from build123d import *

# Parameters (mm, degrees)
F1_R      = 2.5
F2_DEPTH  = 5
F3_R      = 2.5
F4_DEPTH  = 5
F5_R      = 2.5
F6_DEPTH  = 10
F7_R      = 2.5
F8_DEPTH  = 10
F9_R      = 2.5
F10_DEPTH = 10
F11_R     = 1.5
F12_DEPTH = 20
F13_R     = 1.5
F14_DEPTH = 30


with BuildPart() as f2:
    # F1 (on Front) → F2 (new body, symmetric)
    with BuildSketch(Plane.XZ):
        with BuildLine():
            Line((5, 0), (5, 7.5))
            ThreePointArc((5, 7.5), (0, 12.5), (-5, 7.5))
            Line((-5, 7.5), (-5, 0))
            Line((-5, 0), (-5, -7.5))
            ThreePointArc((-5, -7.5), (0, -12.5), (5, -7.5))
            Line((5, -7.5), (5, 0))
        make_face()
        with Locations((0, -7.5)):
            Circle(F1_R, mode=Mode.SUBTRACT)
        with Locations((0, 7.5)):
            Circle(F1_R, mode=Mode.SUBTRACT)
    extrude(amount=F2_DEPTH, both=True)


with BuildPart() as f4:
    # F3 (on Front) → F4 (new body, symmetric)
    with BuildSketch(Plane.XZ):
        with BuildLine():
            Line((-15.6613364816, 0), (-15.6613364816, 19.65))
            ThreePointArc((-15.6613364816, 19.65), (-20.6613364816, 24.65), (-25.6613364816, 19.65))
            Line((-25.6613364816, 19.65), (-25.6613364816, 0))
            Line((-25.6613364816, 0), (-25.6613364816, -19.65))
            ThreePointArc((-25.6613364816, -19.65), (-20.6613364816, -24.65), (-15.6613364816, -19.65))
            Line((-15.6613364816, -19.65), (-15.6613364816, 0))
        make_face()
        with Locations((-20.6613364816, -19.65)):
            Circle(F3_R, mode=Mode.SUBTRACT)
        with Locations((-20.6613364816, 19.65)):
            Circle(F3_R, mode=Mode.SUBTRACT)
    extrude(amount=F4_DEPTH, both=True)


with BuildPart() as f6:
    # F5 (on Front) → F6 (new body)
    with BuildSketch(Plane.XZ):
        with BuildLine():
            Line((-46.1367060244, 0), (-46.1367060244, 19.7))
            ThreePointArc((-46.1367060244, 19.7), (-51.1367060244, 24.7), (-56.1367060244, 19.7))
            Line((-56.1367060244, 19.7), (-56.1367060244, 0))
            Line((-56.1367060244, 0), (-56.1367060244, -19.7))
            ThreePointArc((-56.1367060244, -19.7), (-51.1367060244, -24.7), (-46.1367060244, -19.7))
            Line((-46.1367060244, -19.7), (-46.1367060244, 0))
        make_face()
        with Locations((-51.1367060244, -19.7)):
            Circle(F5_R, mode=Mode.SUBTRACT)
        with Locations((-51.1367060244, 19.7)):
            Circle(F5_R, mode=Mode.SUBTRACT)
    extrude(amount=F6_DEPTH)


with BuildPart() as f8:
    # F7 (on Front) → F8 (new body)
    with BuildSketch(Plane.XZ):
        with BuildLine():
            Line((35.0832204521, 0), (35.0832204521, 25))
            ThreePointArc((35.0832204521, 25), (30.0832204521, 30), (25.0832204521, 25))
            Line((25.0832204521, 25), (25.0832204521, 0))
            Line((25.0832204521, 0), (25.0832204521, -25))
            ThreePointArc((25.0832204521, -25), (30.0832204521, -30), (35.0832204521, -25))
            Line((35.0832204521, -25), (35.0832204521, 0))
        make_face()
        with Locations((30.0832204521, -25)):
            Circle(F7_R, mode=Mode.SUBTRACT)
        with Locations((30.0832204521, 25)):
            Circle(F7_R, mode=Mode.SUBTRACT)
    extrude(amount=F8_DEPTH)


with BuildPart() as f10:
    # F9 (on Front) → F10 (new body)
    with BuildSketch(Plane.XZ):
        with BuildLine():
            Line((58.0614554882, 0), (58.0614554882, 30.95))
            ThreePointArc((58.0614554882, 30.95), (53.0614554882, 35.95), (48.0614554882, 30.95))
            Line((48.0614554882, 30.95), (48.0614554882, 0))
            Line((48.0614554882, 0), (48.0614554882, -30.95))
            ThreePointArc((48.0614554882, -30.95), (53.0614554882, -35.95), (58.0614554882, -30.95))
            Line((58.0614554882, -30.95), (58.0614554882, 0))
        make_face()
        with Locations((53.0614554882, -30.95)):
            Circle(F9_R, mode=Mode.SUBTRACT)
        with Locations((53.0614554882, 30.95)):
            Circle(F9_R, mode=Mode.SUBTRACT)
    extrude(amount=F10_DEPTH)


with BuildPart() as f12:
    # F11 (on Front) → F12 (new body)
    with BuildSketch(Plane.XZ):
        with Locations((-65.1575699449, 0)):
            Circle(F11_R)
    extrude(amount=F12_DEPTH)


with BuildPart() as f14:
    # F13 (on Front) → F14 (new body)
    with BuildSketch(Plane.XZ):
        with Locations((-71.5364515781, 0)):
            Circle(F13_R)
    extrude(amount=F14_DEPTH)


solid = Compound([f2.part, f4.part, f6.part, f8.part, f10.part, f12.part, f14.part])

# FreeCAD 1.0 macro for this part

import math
import FreeCAD as App
import Part
import Sketcher

doc = App.newDocument("Part")
body = doc.addObject("PartDesign::Body", "Body")

# Sketch on XZ plane
sketch1 = body.newObject("Sketcher::SketchObject", "Sketch")
sketch1.AttachmentSupport = (doc.getObject("XZ_Plane"), [""])
sketch1.MapMode = "FlatFace"
sketch1.addGeometry([
    Part.ArcOfCircle(Part.Circle(App.Vector(0, 7.5, 0), App.Vector(0, 0, 1), 5), math.radians(0), math.radians(180)),  # 0
    Part.LineSegment(App.Vector(-5, 7.5, 0), App.Vector(-5, -7.5, 0)),  # 1
    Part.ArcOfCircle(Part.Circle(App.Vector(0, -7.5, 0), App.Vector(0, 0, 1), 5), math.radians(180), math.radians(360)),  # 2
    Part.LineSegment(App.Vector(5, -7.5, 0), App.Vector(5, 7.5, 0)),  # 3
    Part.Circle(App.Vector(0, -7.5, 0), App.Vector(0, 0, 1), 2.5),  # 4
    Part.Circle(App.Vector(0, 7.5, 0), App.Vector(0, 0, 1), 2.5),  # 5
], False)
sketch1.addConstraint([
    Sketcher.Constraint("Tangent", 0, 2, 1, 1),
    Sketcher.Constraint("Tangent", 1, 2, 2, 1),
    Sketcher.Constraint("Tangent", 2, 2, 3, 1),
    Sketcher.Constraint("Tangent", 3, 2, 0, 1),
    Sketcher.Constraint("Vertical", 1),
    Sketcher.Constraint("Vertical", 3),
    Sketcher.Constraint("Coincident", 4, 3, 2, 3),
    Sketcher.Constraint("Coincident", 5, 3, 0, 3),
    Sketcher.Constraint("Equal", 4, 5),
    Sketcher.Constraint("Symmetric", 0, 3, 2, 3, -1, 1),
    Sketcher.Constraint("Diameter", 4, 5.0),
    Sketcher.Constraint("Radius", 0, 5.0),
    Sketcher.Constraint("DistanceY", 1, 2, 1, 1, 15.0),
])
pad1 = body.newObject("PartDesign::Pad", "Pad")
pad1.Profile = sketch1
pad1.Length = 10
pad1.Midplane = True
body2 = doc.addObject("PartDesign::Body", "Body001")

# Sketch on XZ plane
sketch2 = body2.newObject("Sketcher::SketchObject", "Sketch001")
sketch2.AttachmentSupport = (doc.getObject("XZ_Plane001"), [""])
sketch2.MapMode = "FlatFace"
sketch2.addGeometry([
    Part.ArcOfCircle(Part.Circle(App.Vector(-20.7, 19.6, 0), App.Vector(0, 0, 1), 5), math.radians(0), math.radians(180)),  # 0
    Part.LineSegment(App.Vector(-25.7, 19.6, 0), App.Vector(-25.7, -19.6, 0)),  # 1
    Part.ArcOfCircle(Part.Circle(App.Vector(-20.7, -19.6, 0), App.Vector(0, 0, 1), 5), math.radians(180), math.radians(360)),  # 2
    Part.LineSegment(App.Vector(-15.7, -19.6, 0), App.Vector(-15.7, 19.6, 0)),  # 3
    Part.Circle(App.Vector(-20.7, -19.6, 0), App.Vector(0, 0, 1), 2.5),  # 4
    Part.Circle(App.Vector(-20.7, 19.6, 0), App.Vector(0, 0, 1), 2.5),  # 5
], False)
sketch2.addConstraint([
    Sketcher.Constraint("Tangent", 0, 2, 1, 1),
    Sketcher.Constraint("Tangent", 1, 2, 2, 1),
    Sketcher.Constraint("Tangent", 2, 2, 3, 1),
    Sketcher.Constraint("Tangent", 3, 2, 0, 1),
    Sketcher.Constraint("Vertical", 1),
    Sketcher.Constraint("Vertical", 3),
    Sketcher.Constraint("Coincident", 4, 3, 2, 3),
    Sketcher.Constraint("Coincident", 5, 3, 0, 3),
    Sketcher.Constraint("Equal", 4, 5),
    Sketcher.Constraint("Diameter", 4, 5.0),
    Sketcher.Constraint("Radius", 0, 5.0),
    Sketcher.Constraint("DistanceY", 1, 2, 1, 1, 39.3),
    Sketcher.Constraint("DistanceY", -1, 1, 0, 3, 19.65),
    Sketcher.Constraint("DistanceX", 0, 3, -1, 1, 20.661336),
])
pad2 = body2.newObject("PartDesign::Pad", "Pad001")
pad2.Profile = sketch2
pad2.Length = 10
pad2.Midplane = True
body3 = doc.addObject("PartDesign::Body", "Body002")

# Sketch on XZ plane
sketch3 = body3.newObject("Sketcher::SketchObject", "Sketch002")
sketch3.AttachmentSupport = (doc.getObject("XZ_Plane002"), [""])
sketch3.MapMode = "FlatFace"
sketch3.addGeometry([
    Part.ArcOfCircle(Part.Circle(App.Vector(-51.1, 19.7, 0), App.Vector(0, 0, 1), 5), math.radians(0), math.radians(180)),  # 0
    Part.LineSegment(App.Vector(-56.1, 19.7, 0), App.Vector(-56.1, -19.7, 0)),  # 1
    Part.ArcOfCircle(Part.Circle(App.Vector(-51.1, -19.7, 0), App.Vector(0, 0, 1), 5), math.radians(180), math.radians(360)),  # 2
    Part.LineSegment(App.Vector(-46.1, -19.7, 0), App.Vector(-46.1, 19.7, 0)),  # 3
    Part.Circle(App.Vector(-51.1, -19.7, 0), App.Vector(0, 0, 1), 2.5),  # 4
    Part.Circle(App.Vector(-51.1, 19.7, 0), App.Vector(0, 0, 1), 2.5),  # 5
], False)
sketch3.addConstraint([
    Sketcher.Constraint("Tangent", 0, 2, 1, 1),
    Sketcher.Constraint("Tangent", 1, 2, 2, 1),
    Sketcher.Constraint("Tangent", 2, 2, 3, 1),
    Sketcher.Constraint("Tangent", 3, 2, 0, 1),
    Sketcher.Constraint("Vertical", 1),
    Sketcher.Constraint("Vertical", 3),
    Sketcher.Constraint("Coincident", 4, 3, 2, 3),
    Sketcher.Constraint("Coincident", 5, 3, 0, 3),
    Sketcher.Constraint("Equal", 4, 5),
    Sketcher.Constraint("Diameter", 4, 5.0),
    Sketcher.Constraint("Radius", 0, 5.0),
    Sketcher.Constraint("DistanceY", 1, 2, 1, 1, 39.4),
    Sketcher.Constraint("DistanceY", -1, 1, 0, 3, 19.7),
    Sketcher.Constraint("DistanceX", 0, 3, -1, 1, 51.136706),
])
pad3 = body3.newObject("PartDesign::Pad", "Pad002")
pad3.Profile = sketch3
pad3.Length = 10
body4 = doc.addObject("PartDesign::Body", "Body003")

# Sketch on XZ plane
sketch4 = body4.newObject("Sketcher::SketchObject", "Sketch003")
sketch4.AttachmentSupport = (doc.getObject("XZ_Plane003"), [""])
sketch4.MapMode = "FlatFace"
sketch4.addGeometry([
    Part.ArcOfCircle(Part.Circle(App.Vector(30.1, 25, 0), App.Vector(0, 0, 1), 5), math.radians(0), math.radians(180)),  # 0
    Part.LineSegment(App.Vector(25.1, 25, 0), App.Vector(25.1, -25, 0)),  # 1
    Part.ArcOfCircle(Part.Circle(App.Vector(30.1, -25, 0), App.Vector(0, 0, 1), 5), math.radians(180), math.radians(360)),  # 2
    Part.LineSegment(App.Vector(35.1, -25, 0), App.Vector(35.1, 25, 0)),  # 3
    Part.Circle(App.Vector(30.1, -25, 0), App.Vector(0, 0, 1), 2.5),  # 4
    Part.Circle(App.Vector(30.1, 25, 0), App.Vector(0, 0, 1), 2.5),  # 5
], False)
sketch4.addConstraint([
    Sketcher.Constraint("Tangent", 0, 2, 1, 1),
    Sketcher.Constraint("Tangent", 1, 2, 2, 1),
    Sketcher.Constraint("Tangent", 2, 2, 3, 1),
    Sketcher.Constraint("Tangent", 3, 2, 0, 1),
    Sketcher.Constraint("Vertical", 1),
    Sketcher.Constraint("Vertical", 3),
    Sketcher.Constraint("Coincident", 4, 3, 2, 3),
    Sketcher.Constraint("Coincident", 5, 3, 0, 3),
    Sketcher.Constraint("Equal", 4, 5),
    Sketcher.Constraint("Diameter", 4, 5.0),
    Sketcher.Constraint("Radius", 0, 5.0),
    Sketcher.Constraint("DistanceY", 1, 2, 1, 1, 50.0),
    Sketcher.Constraint("DistanceY", -1, 1, 0, 3, 25.0),
    Sketcher.Constraint("DistanceX", -1, 1, 0, 3, 30.08322),
])
pad4 = body4.newObject("PartDesign::Pad", "Pad003")
pad4.Profile = sketch4
pad4.Length = 10
body5 = doc.addObject("PartDesign::Body", "Body004")

# Sketch on XZ plane
sketch5 = body5.newObject("Sketcher::SketchObject", "Sketch004")
sketch5.AttachmentSupport = (doc.getObject("XZ_Plane004"), [""])
sketch5.MapMode = "FlatFace"
sketch5.addGeometry([
    Part.ArcOfCircle(Part.Circle(App.Vector(53.1, 30.9, 0), App.Vector(0, 0, 1), 5), math.radians(0), math.radians(180)),  # 0
    Part.LineSegment(App.Vector(48.1, 30.9, 0), App.Vector(48.1, -30.9, 0)),  # 1
    Part.ArcOfCircle(Part.Circle(App.Vector(53.1, -30.9, 0), App.Vector(0, 0, 1), 5), math.radians(180), math.radians(360)),  # 2
    Part.LineSegment(App.Vector(58.1, -30.9, 0), App.Vector(58.1, 30.9, 0)),  # 3
    Part.Circle(App.Vector(53.1, -30.9, 0), App.Vector(0, 0, 1), 2.5),  # 4
    Part.Circle(App.Vector(53.1, 30.9, 0), App.Vector(0, 0, 1), 2.5),  # 5
], False)
sketch5.addConstraint([
    Sketcher.Constraint("Tangent", 0, 2, 1, 1),
    Sketcher.Constraint("Tangent", 1, 2, 2, 1),
    Sketcher.Constraint("Tangent", 2, 2, 3, 1),
    Sketcher.Constraint("Tangent", 3, 2, 0, 1),
    Sketcher.Constraint("Vertical", 1),
    Sketcher.Constraint("Vertical", 3),
    Sketcher.Constraint("Coincident", 4, 3, 2, 3),
    Sketcher.Constraint("Coincident", 5, 3, 0, 3),
    Sketcher.Constraint("Equal", 4, 5),
    Sketcher.Constraint("Diameter", 4, 5.0),
    Sketcher.Constraint("Radius", 0, 5.0),
    Sketcher.Constraint("DistanceY", 1, 2, 1, 1, 61.9),
    Sketcher.Constraint("DistanceY", -1, 1, 0, 3, 30.95),
    Sketcher.Constraint("DistanceX", -1, 1, 0, 3, 53.061455),
])
pad5 = body5.newObject("PartDesign::Pad", "Pad004")
pad5.Profile = sketch5
pad5.Length = 10
body6 = doc.addObject("PartDesign::Body", "Body005")

# Sketch on XZ plane
sketch6 = body6.newObject("Sketcher::SketchObject", "Sketch005")
sketch6.AttachmentSupport = (doc.getObject("XZ_Plane005"), [""])
sketch6.MapMode = "FlatFace"
sketch6.addGeometry(Part.Circle(App.Vector(-65.2, 0, 0), App.Vector(0, 0, 1), 1.5), False)
sketch6.addConstraint([
    Sketcher.Constraint("PointOnObject", 0, 3, -1),
    Sketcher.Constraint("Diameter", 0, 3.0),
    Sketcher.Constraint("DistanceX", 0, 3, -1, 1, 65.15757),
])
pad6 = body6.newObject("PartDesign::Pad", "Pad005")
pad6.Profile = sketch6
pad6.Length = 20
body7 = doc.addObject("PartDesign::Body", "Body006")

# Sketch on XZ plane
sketch7 = body7.newObject("Sketcher::SketchObject", "Sketch006")
sketch7.AttachmentSupport = (doc.getObject("XZ_Plane006"), [""])
sketch7.MapMode = "FlatFace"
sketch7.addGeometry(Part.Circle(App.Vector(-71.5, 0, 0), App.Vector(0, 0, 1), 1.5), False)
sketch7.addConstraint([
    Sketcher.Constraint("PointOnObject", 0, 3, -1),
    Sketcher.Constraint("Diameter", 0, 3.0),
    Sketcher.Constraint("DistanceX", 0, 3, -1, 1, 71.536452),
])
pad7 = body7.newObject("PartDesign::Pad", "Pad006")
pad7.Profile = sketch7
pad7.Length = 30

doc.recompute()
